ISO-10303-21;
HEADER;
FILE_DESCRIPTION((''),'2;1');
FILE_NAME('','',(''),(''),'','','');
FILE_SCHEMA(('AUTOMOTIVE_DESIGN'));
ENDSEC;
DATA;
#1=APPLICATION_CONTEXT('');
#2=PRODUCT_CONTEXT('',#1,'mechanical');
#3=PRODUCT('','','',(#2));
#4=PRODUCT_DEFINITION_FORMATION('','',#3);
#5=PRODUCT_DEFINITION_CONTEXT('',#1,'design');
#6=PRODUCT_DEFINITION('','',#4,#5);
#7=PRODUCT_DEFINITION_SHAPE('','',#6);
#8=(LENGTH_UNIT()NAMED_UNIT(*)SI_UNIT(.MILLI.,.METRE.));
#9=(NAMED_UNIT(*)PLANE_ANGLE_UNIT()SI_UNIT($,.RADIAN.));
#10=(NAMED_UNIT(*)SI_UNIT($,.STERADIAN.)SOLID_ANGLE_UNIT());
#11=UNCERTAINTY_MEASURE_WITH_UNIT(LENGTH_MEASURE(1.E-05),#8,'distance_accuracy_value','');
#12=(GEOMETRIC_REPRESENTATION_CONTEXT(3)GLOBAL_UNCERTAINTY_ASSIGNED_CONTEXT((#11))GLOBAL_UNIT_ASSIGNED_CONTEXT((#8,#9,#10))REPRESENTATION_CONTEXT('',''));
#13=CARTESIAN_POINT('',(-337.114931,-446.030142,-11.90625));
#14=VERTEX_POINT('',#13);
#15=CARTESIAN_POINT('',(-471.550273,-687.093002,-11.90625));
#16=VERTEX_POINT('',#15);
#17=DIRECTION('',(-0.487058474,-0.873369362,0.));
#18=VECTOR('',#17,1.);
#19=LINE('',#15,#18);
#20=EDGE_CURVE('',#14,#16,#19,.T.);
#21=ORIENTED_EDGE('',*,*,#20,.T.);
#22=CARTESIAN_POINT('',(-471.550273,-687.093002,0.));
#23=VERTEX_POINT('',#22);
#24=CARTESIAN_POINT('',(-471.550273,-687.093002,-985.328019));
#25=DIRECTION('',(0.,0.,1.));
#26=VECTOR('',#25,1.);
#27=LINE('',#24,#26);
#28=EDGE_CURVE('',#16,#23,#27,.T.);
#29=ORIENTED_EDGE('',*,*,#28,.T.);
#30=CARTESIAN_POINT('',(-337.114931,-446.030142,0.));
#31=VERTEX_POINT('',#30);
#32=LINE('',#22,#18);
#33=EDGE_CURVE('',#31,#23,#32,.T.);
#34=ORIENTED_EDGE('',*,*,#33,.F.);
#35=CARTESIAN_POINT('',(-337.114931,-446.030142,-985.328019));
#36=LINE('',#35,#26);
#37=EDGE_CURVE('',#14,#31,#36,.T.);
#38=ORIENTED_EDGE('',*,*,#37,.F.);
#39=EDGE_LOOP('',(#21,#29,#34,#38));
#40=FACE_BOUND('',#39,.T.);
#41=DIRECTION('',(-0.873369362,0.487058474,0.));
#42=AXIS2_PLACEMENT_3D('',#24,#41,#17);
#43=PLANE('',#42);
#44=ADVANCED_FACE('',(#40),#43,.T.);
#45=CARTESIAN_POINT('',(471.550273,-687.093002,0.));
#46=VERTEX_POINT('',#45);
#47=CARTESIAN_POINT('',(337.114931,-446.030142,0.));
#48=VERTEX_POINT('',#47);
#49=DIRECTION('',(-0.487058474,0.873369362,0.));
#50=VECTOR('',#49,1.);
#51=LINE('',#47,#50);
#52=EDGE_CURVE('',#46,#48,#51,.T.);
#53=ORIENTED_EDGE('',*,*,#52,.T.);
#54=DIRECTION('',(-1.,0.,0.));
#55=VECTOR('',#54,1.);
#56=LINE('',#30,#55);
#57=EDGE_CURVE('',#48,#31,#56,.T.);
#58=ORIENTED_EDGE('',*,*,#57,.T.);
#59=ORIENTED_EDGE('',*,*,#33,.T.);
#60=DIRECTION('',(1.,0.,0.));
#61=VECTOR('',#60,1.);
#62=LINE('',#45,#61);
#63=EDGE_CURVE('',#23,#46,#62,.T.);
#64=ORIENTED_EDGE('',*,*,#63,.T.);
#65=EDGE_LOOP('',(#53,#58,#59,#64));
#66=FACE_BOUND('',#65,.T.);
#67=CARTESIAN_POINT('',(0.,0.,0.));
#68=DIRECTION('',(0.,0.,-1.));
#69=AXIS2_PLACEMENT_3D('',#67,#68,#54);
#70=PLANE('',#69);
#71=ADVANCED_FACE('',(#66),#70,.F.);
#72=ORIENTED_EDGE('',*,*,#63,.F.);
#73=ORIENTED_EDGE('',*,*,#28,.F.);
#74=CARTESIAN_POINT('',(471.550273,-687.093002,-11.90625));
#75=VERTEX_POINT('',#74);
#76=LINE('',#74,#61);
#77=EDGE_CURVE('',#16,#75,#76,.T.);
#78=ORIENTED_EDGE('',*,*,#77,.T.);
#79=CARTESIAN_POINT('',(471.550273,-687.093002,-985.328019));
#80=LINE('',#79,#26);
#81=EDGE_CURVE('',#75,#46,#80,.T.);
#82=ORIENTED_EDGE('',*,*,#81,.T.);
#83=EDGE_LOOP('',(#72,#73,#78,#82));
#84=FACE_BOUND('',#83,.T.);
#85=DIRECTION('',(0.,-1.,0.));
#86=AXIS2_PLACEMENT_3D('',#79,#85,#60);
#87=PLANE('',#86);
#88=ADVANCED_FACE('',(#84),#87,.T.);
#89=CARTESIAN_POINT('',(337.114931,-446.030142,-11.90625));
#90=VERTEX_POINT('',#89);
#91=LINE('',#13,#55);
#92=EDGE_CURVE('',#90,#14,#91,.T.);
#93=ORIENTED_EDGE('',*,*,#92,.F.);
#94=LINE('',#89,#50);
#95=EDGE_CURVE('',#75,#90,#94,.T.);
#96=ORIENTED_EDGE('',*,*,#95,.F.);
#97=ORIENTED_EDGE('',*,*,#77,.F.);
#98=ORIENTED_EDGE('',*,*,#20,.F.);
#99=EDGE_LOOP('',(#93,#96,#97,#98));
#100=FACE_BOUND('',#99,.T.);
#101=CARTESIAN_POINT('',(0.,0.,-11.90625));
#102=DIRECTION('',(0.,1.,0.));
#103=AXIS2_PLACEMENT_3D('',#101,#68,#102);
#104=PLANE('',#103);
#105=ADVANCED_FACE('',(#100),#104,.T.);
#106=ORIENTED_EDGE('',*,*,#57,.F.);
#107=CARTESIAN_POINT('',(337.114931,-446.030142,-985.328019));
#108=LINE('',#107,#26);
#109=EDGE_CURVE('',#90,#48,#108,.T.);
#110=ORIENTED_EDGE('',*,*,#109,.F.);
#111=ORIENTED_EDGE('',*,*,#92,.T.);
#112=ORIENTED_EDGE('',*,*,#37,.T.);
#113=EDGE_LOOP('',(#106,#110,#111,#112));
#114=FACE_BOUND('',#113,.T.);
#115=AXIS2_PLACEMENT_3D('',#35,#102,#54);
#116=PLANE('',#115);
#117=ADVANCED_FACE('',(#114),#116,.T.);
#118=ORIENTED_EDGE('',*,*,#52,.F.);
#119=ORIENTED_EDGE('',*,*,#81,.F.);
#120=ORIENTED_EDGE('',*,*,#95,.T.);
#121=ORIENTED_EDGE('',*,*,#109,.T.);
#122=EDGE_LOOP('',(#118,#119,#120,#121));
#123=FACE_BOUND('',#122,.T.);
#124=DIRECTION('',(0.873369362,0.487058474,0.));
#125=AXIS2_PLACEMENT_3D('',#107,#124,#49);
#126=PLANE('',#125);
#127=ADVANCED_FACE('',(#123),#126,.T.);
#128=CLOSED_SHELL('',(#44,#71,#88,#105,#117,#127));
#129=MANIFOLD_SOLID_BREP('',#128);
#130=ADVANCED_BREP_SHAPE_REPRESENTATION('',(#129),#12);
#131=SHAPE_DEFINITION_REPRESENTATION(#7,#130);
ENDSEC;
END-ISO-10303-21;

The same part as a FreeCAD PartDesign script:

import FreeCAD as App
import Part
import Sketcher

V = App.Vector


def add_polygon(sketch, points):
    """Adds a closed chain of lines whose ends are joined by coincident constraints."""
    first, n = sketch.GeometryCount, len(points)
    for a, b in zip(points, points[1:] + points[:1]):
        sketch.addGeometry(Part.LineSegment(App.Vector(*a, 0), App.Vector(*b, 0)), False)
    for i in range(n):
        sketch.addConstraint(Sketcher.Constraint("Coincident", first + i, 2, first + (i + 1) % n, 1))

doc = App.newDocument("Part")
params = doc.addObject("Spreadsheet::Sheet", "Params")
for row, (alias, value) in enumerate([
    ("pad1_length", "0.46875 in"),
], start=1):
    params.set(f"A{row}", alias)
    params.set(f"B{row}", "=" + value)
    params.setAlias(f"B{row}", alias)

body = doc.addObject("PartDesign::Body", "Body")

# Sketch on XY plane
sketch1 = body.newObject("Sketcher::SketchObject", "Sketch")
sketch1.AttachmentSupport = (doc.getObject("XY_Plane"), [""])
sketch1.MapMode = "FlatFace"
add_polygon(sketch1, [(-337, -446), (-472, -687), (472, -687), (337, -446)])  # lines 0-3
sketch1.addConstraint(Sketcher.Constraint("Horizontal", 1))
sketch1.addConstraint(Sketcher.Constraint("Horizontal", 3))
sketch1.addConstraint(Sketcher.Constraint("Equal", 0, 2))
sketch1.addConstraint(Sketcher.Constraint("DistanceX", 3, 2, 3, 1, 674.229861))
sketch1.addConstraint(Sketcher.Constraint("Distance", 0, 276.014789))
sketch1.addConstraint(Sketcher.Constraint("DistanceX", 1, 1, 1, 2, 943.100545))
sketch1.addConstraint(Sketcher.Constraint("DistanceX", -1, 1, 2, 2, 337.114931))
sketch1.addConstraint(Sketcher.Constraint("DistanceY", 2, 2, -1, 1, 446.030142))
pad1 = body.newObject("PartDesign::Pad", "Pad")
pad1.Profile = sketch1
pad1.setExpression("Length", "Params.pad1_length")
pad1.Reversed = True

doc.recompute()
